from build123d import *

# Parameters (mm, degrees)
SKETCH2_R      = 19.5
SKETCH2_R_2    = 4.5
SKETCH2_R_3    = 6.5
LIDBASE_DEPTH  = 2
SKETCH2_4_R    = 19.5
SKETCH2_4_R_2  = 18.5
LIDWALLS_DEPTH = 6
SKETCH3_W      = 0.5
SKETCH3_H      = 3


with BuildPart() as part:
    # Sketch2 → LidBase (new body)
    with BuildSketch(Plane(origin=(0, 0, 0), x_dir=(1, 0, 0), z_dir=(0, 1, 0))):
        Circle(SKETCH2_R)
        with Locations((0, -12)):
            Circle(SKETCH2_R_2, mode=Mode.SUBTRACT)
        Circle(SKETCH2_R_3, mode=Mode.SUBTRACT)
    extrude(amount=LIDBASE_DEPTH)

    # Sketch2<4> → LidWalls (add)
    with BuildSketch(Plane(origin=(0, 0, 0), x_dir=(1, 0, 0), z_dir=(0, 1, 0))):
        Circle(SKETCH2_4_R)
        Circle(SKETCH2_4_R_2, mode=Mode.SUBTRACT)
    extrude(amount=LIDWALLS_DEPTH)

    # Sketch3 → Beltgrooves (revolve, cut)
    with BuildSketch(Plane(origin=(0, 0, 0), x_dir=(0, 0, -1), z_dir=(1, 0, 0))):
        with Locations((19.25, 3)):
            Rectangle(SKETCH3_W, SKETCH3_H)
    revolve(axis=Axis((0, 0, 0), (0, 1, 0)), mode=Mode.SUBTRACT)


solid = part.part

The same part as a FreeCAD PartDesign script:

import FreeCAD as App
import Part
import Sketcher


def add_polygon(sketch, points):
    """Adds a closed chain of lines whose ends are joined by coincident constraints."""
    first, n = sketch.GeometryCount, len(points)
    for a, b in zip(points, points[1:] + points[:1]):
        sketch.addGeometry(Part.LineSegment(App.Vector(*a, 0), App.Vector(*b, 0)), False)
    for i in range(n):
        sketch.addConstraint(Sketcher.Constraint("Coincident", first + i, 2, first + (i + 1) % n, 1))

doc = App.newDocument("Part")
body = doc.addObject("PartDesign::Body", "Body")

# Sketch on XZ plane
sketch1 = body.newObject("Sketcher::SketchObject", "Sketch")
sketch1.AttachmentSupport = (doc.getObject("XZ_Plane"), [""])
sketch1.MapMode = "FlatFace"
sketch1.addGeometry([
    Part.Circle(App.Vector(0, 0, 0), App.Vector(0, 0, 1), 19.5),
    Part.Circle(App.Vector(0, 12, 0), App.Vector(0, 0, 1), 4.5),
    Part.Circle(App.Vector(0, 0, 0), App.Vector(0, 0, 1), 6.5),
], False)
sketch1.addConstraint([
    Sketcher.Constraint("Coincident", 0, 3, -1, 1),
    Sketcher.Constraint("Coincident", 2, 3, -1, 1),
    Sketcher.Constraint("PointOnObject", 1, 3, -2),
    Sketcher.Constraint("Diameter", 0, 39.0),
    Sketcher.Constraint("Diameter", 1, 9.0),
    Sketcher.Constraint("Diameter", 2, 13.0),
    Sketcher.Constraint("DistanceY", -1, 1, 1, 3, 12.0),
])
pad1 = body.newObject("PartDesign::Pad", "Pad")
pad1.Profile = sketch1
pad1.Length = 2
pad1.Reversed = True

# Sketch on XZ plane
sketch2 = body.newObject("Sketcher::SketchObject", "Sketch001")
sketch2.AttachmentSupport = (doc.getObject("XZ_Plane"), [""])
sketch2.MapMode = "FlatFace"
sketch2.addGeometry([
    Part.Circle(App.Vector(0, 0, 0), App.Vector(0, 0, 1), 20),
    Part.Circle(App.Vector(0, 0, 0), App.Vector(0, 0, 1), 18),
], False)
sketch2.addConstraint([
    Sketcher.Constraint("Coincident", 0, 3, -1, 1),
    Sketcher.Constraint("Coincident", 1, 3, -1, 1),
    Sketcher.Constraint("Diameter", 0, 39.0),
    Sketcher.Constraint("Diameter", 1, 37.0),
])
pad2 = body.newObject("PartDesign::Pad", "Pad001")
pad2.Profile = sketch2
pad2.Length = 6
pad2.Reversed = True

# Sketch on YZ plane
sketch3 = body.newObject("Sketcher::SketchObject", "Sketch002")
sketch3.AttachmentSupport = (doc.getObject("YZ_Plane"), [""])
sketch3.MapMode = "FlatFace"
add_polygon(sketch3, [(4.5, -19), (1.5, -19), (1.5, -19.5), (4.5, -19.5)])  # lines 0-3
sketch3.addConstraint([
    Sketcher.Constraint("Horizontal", 0),
    Sketcher.Constraint("Vertical", 1),
    Sketcher.Constraint("Horizontal", 2),
    Sketcher.Constraint("Vertical", 3),
    Sketcher.Constraint("DistanceX", 0, 2, 0, 1, 3.0),
    Sketcher.Constraint("DistanceY", 1, 2, 1, 1, 0.5),
    Sketcher.Constraint("DistanceY", 0, 2, -1, 1, 19.0),
    Sketcher.Constraint("DistanceX", -1, 1, 0, 2, 1.5),
])
groove = body.newObject("PartDesign::Groove", "Groove")
groove.Profile = sketch3
groove.ReferenceAxis = (sketch3, ["H_Axis"])
groove.Angle = 360

doc.recompute()
